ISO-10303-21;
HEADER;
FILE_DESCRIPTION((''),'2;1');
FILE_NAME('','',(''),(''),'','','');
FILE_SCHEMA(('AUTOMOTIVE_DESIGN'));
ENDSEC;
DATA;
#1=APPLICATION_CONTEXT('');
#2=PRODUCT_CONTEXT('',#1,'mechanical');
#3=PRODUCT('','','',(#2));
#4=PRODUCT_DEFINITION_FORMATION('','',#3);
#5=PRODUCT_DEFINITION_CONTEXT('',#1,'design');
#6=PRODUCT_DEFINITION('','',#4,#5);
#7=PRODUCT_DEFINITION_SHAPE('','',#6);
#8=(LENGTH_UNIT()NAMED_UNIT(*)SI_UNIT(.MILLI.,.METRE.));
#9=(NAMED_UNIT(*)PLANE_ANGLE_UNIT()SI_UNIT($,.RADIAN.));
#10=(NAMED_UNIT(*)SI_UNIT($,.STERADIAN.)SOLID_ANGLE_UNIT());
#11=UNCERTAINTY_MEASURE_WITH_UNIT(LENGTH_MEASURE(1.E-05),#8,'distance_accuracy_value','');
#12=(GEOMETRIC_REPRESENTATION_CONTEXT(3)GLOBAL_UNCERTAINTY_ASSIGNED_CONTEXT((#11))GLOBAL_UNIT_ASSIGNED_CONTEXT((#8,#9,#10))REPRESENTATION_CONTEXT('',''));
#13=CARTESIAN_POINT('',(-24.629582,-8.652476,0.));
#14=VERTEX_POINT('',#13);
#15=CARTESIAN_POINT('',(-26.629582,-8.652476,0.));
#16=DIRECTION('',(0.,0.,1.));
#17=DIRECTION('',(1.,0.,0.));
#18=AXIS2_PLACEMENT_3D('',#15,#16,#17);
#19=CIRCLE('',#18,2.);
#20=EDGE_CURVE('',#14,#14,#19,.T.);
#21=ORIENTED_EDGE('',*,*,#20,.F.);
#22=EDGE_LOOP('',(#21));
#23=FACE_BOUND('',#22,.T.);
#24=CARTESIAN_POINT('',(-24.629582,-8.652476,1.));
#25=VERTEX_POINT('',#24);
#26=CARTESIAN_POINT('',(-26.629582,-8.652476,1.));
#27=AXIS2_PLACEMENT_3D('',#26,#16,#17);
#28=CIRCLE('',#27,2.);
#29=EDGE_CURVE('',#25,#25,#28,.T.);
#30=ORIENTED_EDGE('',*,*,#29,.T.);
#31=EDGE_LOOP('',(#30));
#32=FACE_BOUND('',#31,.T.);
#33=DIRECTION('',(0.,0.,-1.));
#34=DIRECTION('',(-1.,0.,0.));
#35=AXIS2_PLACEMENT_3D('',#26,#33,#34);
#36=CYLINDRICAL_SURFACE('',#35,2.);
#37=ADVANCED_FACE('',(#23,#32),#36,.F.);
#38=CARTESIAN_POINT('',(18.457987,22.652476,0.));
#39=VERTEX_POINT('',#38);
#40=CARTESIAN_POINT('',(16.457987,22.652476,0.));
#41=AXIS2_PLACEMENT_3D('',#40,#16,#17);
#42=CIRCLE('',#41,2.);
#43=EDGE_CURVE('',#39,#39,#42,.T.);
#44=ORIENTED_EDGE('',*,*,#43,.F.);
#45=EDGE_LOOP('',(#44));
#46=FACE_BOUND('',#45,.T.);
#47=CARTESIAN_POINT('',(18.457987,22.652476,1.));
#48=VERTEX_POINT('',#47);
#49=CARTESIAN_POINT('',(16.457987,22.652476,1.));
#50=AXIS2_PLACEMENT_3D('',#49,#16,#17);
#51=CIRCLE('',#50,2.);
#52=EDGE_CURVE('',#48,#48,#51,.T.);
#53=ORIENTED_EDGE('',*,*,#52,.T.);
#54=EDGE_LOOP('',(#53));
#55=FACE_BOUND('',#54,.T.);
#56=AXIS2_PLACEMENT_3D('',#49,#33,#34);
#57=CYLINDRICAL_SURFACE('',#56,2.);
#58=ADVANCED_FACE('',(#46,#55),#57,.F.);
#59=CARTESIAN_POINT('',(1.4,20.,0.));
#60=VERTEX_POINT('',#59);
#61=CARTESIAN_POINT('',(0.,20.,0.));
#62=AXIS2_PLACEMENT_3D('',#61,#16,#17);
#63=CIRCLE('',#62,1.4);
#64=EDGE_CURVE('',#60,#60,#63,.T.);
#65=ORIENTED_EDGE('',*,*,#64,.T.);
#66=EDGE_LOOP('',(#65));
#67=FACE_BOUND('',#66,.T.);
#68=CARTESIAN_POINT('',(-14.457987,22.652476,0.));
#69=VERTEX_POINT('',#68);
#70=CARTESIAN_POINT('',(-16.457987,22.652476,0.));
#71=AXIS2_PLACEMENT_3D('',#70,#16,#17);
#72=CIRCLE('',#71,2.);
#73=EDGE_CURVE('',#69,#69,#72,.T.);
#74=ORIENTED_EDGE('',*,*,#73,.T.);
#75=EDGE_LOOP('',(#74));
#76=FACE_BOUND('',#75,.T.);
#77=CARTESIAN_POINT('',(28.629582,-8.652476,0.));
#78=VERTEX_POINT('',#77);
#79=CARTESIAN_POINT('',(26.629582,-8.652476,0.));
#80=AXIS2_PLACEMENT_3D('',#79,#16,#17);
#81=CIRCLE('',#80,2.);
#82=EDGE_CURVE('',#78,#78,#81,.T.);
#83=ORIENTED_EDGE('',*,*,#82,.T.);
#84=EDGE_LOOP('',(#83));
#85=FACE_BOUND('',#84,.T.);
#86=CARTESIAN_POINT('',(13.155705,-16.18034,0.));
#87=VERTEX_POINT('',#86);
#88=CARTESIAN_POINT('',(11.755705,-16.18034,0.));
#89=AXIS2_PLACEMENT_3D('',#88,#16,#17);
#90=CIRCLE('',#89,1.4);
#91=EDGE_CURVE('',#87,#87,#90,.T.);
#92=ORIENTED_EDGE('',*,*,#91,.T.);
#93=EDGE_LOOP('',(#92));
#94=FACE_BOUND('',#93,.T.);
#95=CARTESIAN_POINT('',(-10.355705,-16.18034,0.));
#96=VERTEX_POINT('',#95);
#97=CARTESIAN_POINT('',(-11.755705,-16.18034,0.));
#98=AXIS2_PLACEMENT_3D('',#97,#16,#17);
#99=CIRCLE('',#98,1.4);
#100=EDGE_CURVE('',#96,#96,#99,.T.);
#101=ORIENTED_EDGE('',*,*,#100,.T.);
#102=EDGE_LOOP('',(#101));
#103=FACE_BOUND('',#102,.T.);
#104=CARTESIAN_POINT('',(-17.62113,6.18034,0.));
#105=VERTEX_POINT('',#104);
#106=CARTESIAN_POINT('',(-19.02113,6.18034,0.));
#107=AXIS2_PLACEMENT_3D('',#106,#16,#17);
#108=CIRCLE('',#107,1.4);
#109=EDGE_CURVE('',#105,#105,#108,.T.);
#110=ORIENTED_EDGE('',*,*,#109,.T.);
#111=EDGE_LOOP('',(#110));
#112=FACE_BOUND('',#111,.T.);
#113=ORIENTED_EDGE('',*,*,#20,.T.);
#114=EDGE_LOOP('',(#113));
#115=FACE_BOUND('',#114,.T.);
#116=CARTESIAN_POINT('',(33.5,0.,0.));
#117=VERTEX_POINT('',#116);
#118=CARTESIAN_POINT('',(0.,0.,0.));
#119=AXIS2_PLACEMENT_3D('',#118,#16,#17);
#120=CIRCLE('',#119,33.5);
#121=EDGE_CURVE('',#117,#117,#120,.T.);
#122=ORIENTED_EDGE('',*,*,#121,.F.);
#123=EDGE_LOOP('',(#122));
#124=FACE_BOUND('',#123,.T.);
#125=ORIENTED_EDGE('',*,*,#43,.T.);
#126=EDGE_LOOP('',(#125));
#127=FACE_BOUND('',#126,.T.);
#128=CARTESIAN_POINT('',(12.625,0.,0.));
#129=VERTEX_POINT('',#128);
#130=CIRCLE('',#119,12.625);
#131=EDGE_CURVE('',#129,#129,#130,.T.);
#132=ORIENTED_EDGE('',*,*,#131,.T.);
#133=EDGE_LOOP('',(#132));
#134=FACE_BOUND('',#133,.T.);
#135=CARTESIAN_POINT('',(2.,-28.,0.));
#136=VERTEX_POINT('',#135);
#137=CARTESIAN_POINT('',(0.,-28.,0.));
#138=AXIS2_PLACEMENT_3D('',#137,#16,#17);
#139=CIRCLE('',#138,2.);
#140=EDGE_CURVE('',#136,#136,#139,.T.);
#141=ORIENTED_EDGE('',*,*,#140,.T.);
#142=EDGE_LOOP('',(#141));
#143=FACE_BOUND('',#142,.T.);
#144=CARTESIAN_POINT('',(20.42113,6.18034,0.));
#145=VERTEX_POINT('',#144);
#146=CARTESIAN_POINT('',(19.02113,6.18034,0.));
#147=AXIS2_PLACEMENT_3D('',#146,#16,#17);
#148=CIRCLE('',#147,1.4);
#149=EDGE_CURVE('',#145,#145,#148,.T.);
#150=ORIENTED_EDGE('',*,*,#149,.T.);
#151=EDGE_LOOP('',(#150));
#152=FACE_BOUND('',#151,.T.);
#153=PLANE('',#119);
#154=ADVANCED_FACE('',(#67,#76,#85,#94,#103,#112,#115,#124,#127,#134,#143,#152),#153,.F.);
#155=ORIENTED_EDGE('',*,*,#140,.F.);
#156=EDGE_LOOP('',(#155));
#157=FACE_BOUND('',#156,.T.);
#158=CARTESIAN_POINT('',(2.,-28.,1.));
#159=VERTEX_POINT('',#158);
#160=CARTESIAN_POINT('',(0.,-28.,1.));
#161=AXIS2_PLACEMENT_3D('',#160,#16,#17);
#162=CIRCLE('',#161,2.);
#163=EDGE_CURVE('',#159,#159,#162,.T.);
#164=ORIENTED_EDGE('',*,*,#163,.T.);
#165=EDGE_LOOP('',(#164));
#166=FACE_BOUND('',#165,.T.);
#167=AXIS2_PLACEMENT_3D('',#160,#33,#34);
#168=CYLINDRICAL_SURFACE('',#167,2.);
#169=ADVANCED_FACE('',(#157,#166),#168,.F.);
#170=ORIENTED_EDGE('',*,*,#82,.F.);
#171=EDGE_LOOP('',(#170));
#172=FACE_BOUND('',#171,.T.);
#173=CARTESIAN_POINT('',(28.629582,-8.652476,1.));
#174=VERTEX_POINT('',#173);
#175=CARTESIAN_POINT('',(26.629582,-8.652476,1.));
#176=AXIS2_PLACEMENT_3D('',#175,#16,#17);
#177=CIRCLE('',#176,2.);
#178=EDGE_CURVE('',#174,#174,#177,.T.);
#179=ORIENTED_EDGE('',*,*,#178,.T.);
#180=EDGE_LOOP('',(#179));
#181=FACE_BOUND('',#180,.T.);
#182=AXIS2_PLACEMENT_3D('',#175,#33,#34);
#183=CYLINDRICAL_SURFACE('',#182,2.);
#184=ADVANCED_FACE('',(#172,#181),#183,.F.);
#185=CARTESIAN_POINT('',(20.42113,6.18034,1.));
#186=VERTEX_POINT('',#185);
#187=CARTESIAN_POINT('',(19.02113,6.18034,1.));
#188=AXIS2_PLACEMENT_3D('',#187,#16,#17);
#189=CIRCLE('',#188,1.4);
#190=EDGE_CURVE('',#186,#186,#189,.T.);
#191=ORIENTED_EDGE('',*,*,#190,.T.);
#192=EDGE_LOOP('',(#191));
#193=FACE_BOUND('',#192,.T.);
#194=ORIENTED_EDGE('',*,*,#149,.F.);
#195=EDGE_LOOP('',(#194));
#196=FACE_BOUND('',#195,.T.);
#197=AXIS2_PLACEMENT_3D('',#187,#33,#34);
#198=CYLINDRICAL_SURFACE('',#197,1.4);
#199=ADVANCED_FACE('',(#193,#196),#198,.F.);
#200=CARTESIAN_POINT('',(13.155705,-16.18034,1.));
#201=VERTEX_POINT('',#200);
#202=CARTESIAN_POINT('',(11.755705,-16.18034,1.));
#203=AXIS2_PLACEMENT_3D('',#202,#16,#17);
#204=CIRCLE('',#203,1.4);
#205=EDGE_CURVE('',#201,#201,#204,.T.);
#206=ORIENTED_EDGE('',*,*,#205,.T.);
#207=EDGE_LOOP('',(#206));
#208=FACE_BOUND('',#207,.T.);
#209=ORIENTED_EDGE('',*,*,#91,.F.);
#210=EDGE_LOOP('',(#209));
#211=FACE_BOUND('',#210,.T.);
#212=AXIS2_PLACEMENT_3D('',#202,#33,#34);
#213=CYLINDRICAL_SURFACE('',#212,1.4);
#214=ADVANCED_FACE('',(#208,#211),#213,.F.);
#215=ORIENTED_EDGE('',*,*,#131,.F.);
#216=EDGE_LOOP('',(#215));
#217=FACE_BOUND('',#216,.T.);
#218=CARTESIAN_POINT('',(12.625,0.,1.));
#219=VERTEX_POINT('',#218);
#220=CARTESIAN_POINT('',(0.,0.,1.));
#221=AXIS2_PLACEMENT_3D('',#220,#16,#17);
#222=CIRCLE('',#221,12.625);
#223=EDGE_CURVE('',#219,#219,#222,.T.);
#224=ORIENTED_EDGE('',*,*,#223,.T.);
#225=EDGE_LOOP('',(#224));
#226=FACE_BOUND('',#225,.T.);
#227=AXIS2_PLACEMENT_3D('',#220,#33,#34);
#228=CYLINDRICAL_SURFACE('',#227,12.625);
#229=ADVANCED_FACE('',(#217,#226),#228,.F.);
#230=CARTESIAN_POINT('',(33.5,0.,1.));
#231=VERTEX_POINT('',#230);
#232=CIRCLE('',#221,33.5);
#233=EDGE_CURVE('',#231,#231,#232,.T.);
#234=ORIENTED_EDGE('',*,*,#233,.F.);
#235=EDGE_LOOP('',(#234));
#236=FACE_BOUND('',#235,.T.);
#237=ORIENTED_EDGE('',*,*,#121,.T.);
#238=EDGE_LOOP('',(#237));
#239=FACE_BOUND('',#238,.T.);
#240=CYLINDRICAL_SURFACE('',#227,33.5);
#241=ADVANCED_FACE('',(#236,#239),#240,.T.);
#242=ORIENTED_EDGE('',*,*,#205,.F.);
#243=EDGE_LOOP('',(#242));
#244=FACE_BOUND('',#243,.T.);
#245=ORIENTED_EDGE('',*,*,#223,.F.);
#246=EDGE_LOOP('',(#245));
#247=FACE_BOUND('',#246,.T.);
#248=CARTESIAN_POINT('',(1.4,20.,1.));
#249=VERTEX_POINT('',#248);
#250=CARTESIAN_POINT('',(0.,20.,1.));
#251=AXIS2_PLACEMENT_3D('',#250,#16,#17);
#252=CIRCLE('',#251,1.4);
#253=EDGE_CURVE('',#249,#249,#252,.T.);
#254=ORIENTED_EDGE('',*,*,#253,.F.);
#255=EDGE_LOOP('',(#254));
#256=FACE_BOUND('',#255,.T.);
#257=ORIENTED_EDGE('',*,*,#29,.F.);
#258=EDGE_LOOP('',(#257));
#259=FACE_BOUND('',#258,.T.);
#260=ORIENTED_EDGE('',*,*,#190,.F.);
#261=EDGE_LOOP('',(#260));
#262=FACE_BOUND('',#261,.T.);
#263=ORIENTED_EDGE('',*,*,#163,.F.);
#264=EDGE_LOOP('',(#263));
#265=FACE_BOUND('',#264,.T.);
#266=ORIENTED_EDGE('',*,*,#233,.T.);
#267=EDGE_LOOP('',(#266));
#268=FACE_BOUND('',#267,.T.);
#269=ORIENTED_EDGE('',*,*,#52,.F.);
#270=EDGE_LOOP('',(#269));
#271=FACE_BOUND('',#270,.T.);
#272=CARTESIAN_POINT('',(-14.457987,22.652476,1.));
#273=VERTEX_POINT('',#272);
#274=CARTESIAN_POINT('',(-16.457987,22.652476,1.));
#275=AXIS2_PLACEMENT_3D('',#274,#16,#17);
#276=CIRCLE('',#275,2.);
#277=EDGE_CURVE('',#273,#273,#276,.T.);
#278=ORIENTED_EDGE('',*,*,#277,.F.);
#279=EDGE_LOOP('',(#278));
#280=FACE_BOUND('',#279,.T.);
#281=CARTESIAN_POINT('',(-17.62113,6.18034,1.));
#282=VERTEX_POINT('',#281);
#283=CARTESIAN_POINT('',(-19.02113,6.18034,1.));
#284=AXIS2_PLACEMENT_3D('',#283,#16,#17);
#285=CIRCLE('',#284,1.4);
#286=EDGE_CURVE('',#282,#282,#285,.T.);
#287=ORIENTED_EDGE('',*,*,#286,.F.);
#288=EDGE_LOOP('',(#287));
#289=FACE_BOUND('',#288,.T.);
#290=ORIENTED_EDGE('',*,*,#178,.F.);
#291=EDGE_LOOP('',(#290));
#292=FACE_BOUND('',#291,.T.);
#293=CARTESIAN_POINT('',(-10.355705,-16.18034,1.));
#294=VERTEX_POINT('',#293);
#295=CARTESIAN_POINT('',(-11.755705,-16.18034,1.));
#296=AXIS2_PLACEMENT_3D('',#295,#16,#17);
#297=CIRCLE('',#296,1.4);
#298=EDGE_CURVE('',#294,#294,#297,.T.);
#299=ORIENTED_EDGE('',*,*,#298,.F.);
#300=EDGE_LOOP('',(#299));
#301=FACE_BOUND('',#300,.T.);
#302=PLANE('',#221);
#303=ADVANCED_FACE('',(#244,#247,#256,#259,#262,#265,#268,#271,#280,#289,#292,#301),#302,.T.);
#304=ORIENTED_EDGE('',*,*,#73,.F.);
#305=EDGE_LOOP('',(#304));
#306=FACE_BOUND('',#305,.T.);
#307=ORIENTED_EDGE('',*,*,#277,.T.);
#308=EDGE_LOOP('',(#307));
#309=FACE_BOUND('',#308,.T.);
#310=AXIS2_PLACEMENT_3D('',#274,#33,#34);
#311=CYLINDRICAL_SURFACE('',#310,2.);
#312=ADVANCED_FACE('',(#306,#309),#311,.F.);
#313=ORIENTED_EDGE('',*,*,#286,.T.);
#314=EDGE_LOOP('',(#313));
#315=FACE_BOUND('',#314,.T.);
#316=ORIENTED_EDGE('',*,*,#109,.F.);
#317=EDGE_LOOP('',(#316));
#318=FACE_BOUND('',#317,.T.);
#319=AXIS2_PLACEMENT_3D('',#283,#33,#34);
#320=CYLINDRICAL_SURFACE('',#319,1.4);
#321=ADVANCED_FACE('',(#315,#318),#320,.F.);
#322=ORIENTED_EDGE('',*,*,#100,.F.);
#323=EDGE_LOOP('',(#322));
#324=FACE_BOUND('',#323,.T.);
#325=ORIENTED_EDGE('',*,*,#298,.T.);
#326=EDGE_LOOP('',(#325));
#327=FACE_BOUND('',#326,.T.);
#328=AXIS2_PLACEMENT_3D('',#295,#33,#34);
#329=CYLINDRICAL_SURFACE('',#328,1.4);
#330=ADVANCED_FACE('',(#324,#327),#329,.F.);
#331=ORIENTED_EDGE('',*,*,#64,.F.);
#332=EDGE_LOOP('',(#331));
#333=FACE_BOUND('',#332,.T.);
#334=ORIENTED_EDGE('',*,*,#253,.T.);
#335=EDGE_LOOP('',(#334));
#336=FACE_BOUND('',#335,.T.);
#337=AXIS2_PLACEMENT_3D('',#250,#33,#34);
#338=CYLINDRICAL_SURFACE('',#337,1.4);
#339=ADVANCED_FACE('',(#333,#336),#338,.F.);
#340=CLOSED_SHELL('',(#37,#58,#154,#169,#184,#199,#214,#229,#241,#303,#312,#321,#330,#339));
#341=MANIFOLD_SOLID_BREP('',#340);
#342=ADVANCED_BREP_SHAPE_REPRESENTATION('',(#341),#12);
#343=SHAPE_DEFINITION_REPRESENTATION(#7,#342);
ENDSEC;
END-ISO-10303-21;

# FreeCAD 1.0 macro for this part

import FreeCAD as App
import Part
import Sketcher
from FreeCAD import Vector

doc = App.newDocument("Part")
body = doc.addObject("PartDesign::Body", "Body")

# Sketch on XY plane
sketch1 = body.newObject("Sketcher::SketchObject", "Sketch")
sketch1.AttachmentSupport = (doc.getObject("XY_Plane"), [""])
sketch1.MapMode = "FlatFace"
sketch1.addGeometry([
    Part.Circle(Vector(0, 0, 0), Vector(0, 0, 1), 33.5),  # 0
    Part.Circle(Vector(0, -28, 0), Vector(0, 0, 1), 2),  # 1
    Part.Circle(Vector(-26.629582, -8.652476, 0), Vector(0, 0, 1), 2),  # 2
    Part.Circle(Vector(-11.755705, -16.18034, 0), Vector(0, 0, 1), 1.4),  # 3
    Part.Circle(Vector(11.755705, -16.18034, 0), Vector(0, 0, 1), 1.4),  # 4
    Part.Circle(Vector(26.629582, -8.652476, 0), Vector(0, 0, 1), 2),  # 5
    Part.Circle(Vector(-19.02113, 6.18034, 0), Vector(0, 0, 1), 1.4),  # 6
    Part.Circle(Vector(0, 0, 0), Vector(0, 0, 1), 12.625),  # 7
    Part.Circle(Vector(-16.457987, 22.652476, 0), Vector(0, 0, 1), 2),  # 8
    Part.Circle(Vector(0, 20, 0), Vector(0, 0, 1), 1.4),  # 9
    Part.Circle(Vector(19.02113, 6.18034, 0), Vector(0, 0, 1), 1.4),  # 10
    Part.Circle(Vector(16.457987, 22.652476, 0), Vector(0, 0, 1), 2),  # 11
], False)
sketch1.addConstraint([
    Sketcher.Constraint("Coincident", 0, 3, -1, 1),
    Sketcher.Constraint("Coincident", 7, 3, -1, 1),
    Sketcher.Constraint("Equal", 1, 2),
    Sketcher.Constraint("Equal", 3, 4),
    Sketcher.Constraint("Equal", 2, 5),
    Sketcher.Constraint("Equal", 4, 6),
    Sketcher.Constraint("Equal", 5, 8),
    Sketcher.Constraint("Equal", 6, 9),
    Sketcher.Constraint("Equal", 9, 10),
    Sketcher.Constraint("Equal", 8, 11),
    Sketcher.Constraint("Symmetric", 3, 3, 4, 3, -2),
    Sketcher.Constraint("Symmetric", 2, 3, 5, 3, -2),
    Sketcher.Constraint("Symmetric", 6, 3, 10, 3, -2),
    Sketcher.Constraint("Symmetric", 8, 3, 11, 3, -2),
    Sketcher.Constraint("PointOnObject", 1, 3, -2),
    Sketcher.Constraint("PointOnObject", 9, 3, -2),
    Sketcher.Constraint("Diameter", 0, 67.0),
    Sketcher.Constraint("Diameter", 1, 4.0),
    Sketcher.Constraint("Diameter", 3, 2.8),
    Sketcher.Constraint("Diameter", 7, 25.25),
    Sketcher.Constraint("DistanceY", 1, 3, -1, 1, 28.0),
    Sketcher.Constraint("DistanceY", -1, 1, 9, 3, 20.0),
    Sketcher.Constraint("DistanceY", 3, 3, -1, 1, 16.18034),
    Sketcher.Constraint("DistanceX", 6, 3, -1, 1, 19.02113),
    Sketcher.Constraint("DistanceY", -1, 1, 6, 3, 6.18034),
    Sketcher.Constraint("DistanceX", 3, 3, 4, 3, 23.51141),
    Sketcher.Constraint("DistanceY", 2, 3, 8, 3, 31.304952),
    Sketcher.Constraint("DistanceX", 2, 3, -1, 1, 26.629582),
    Sketcher.Constraint("DistanceY", 2, 3, -1, 1, 8.652476),
    Sketcher.Constraint("DistanceX", 8, 3, -1, 1, 16.457987),
])
pad1 = body.newObject("PartDesign::Pad", "Pad")
pad1.Profile = sketch1
pad1.Length = 1

doc.recompute()
